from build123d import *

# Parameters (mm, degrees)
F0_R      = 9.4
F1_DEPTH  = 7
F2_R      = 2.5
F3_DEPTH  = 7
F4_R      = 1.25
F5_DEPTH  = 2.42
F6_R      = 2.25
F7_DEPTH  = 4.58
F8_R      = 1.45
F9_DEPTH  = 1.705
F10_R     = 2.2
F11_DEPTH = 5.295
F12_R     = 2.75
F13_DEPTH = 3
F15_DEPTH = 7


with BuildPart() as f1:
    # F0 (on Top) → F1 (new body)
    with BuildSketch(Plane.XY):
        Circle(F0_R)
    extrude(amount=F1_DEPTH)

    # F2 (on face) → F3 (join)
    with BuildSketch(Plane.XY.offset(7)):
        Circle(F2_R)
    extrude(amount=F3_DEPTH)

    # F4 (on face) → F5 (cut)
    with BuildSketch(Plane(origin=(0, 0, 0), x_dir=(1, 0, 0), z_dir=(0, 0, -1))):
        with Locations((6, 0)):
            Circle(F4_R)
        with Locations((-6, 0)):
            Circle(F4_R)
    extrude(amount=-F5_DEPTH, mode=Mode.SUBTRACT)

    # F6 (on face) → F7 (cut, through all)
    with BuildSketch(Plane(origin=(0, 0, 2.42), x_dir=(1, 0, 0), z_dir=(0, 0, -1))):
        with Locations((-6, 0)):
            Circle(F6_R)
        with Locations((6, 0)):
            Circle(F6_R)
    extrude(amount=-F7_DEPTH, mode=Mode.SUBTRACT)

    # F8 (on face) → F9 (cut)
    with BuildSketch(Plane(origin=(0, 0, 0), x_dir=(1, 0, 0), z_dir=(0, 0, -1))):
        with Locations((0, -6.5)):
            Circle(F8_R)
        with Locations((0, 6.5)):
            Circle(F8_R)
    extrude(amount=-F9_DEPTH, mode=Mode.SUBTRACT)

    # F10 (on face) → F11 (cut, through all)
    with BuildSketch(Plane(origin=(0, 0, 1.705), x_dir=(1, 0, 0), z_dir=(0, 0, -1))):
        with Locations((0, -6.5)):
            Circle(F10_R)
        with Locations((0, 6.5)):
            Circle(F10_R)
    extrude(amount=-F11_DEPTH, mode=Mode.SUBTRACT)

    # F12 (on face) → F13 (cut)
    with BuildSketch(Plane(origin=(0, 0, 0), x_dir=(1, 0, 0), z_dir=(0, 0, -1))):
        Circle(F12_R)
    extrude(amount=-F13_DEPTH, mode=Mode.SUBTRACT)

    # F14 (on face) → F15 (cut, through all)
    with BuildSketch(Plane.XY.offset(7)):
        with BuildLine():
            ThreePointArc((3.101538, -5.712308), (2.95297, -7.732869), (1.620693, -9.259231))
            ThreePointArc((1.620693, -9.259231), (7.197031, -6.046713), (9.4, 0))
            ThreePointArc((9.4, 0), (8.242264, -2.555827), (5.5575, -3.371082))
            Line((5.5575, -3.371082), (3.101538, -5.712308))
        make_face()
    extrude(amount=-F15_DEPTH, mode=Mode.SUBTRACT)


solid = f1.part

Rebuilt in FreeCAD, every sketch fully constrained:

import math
import FreeCAD as App
import Part
import Sketcher

doc = App.newDocument("Part")
body = doc.addObject("PartDesign::Body", "Body")

sketch1 = body.newObject("Sketcher::SketchObject", "Sketch")
sketch1.AttachmentSupport = (doc.getObject("XY_Plane"), [""])
sketch1.MapMode = "FlatFace"
sketch1.addGeometry(Part.Circle(App.Vector(0, 0, 0), App.Vector(0, 0, 1), 9), False)
sketch1.addConstraint([
    Sketcher.Constraint("Coincident", 0, 3, -1, 1),
    Sketcher.Constraint("Diameter", 0, 18.8),
])
pad1 = body.newObject("PartDesign::Pad", "Pad")
pad1.Profile = sketch1
pad1.Length = 7

sketch2 = body.newObject("Sketcher::SketchObject", "Sketch001")
sketch2.AttachmentSupport = (doc.getObject("XY_Plane"), [""])
sketch2.MapMode = "FlatFace"
sketch2.AttachmentOffset = App.Placement(App.Vector(0, 0, 7), App.Rotation())
sketch2.addGeometry(Part.Circle(App.Vector(0, 0, 0), App.Vector(0, 0, 1), 2.5), False)
sketch2.addConstraint([
    Sketcher.Constraint("Coincident", 0, 3, -1, 1),
    Sketcher.Constraint("Diameter", 0, 5.0),
])
pad2 = body.newObject("PartDesign::Pad", "Pad001")
pad2.Profile = sketch2
pad2.Length = 7

sketch3 = body.newObject("Sketcher::SketchObject", "Sketch002")
sketch3.AttachmentSupport = (doc.getObject("XY_Plane"), [""])
sketch3.MapMode = "FlatFace"
sketch3.addGeometry([
    Part.Circle(App.Vector(6, 0, 0), App.Vector(0, 0, 1), 1.2),
    Part.Circle(App.Vector(-6, 0, 0), App.Vector(0, 0, 1), 1.2),
], False)
sketch3.addConstraint([
    Sketcher.Constraint("Equal", 0, 1),
    Sketcher.Constraint("Symmetric", 0, 3, 1, 3, -1, 1),
    Sketcher.Constraint("PointOnObject", 0, 3, -1),
    Sketcher.Constraint("Diameter", 0, 2.5),
    Sketcher.Constraint("DistanceX", -1, 1, 0, 3, 6.0),
])
pocket1 = body.newObject("PartDesign::Pocket", "Pocket")
pocket1.Profile = sketch3
pocket1.Length = 2.42
pocket1.Reversed = True

sketch4 = body.newObject("Sketcher::SketchObject", "Sketch003")
sketch4.AttachmentSupport = (doc.getObject("XY_Plane"), [""])
sketch4.MapMode = "FlatFace"
sketch4.AttachmentOffset = App.Placement(App.Vector(0, 0, 2.42), App.Rotation())
sketch4.addGeometry([
    Part.Circle(App.Vector(-6, 0, 0), App.Vector(0, 0, 1), 2.2),
    Part.Circle(App.Vector(6, 0, 0), App.Vector(0, 0, 1), 2.2),
], False)
sketch4.addConstraint([
    Sketcher.Constraint("Equal", 0, 1),
    Sketcher.Constraint("Symmetric", 0, 3, 1, 3, -1, 1),
    Sketcher.Constraint("PointOnObject", 0, 3, -1),
    Sketcher.Constraint("Diameter", 0, 4.5),
    Sketcher.Constraint("DistanceX", 0, 3, -1, 1, 6.0),
])
pocket2 = body.newObject("PartDesign::Pocket", "Pocket001")
pocket2.Profile = sketch4
pocket2.Type = "ThroughAll"
pocket2.Reversed = True

sketch5 = body.newObject("Sketcher::SketchObject", "Sketch004")
sketch5.AttachmentSupport = (doc.getObject("XY_Plane"), [""])
sketch5.MapMode = "FlatFace"
sketch5.addGeometry([
    Part.Circle(App.Vector(0, 6.5, 0), App.Vector(0, 0, 1), 1.4),
    Part.Circle(App.Vector(0, -6.5, 0), App.Vector(0, 0, 1), 1.4),
], False)
sketch5.addConstraint([
    Sketcher.Constraint("Equal", 0, 1),
    Sketcher.Constraint("Symmetric", 0, 3, 1, 3, -1, 1),
    Sketcher.Constraint("PointOnObject", 0, 3, -2),
    Sketcher.Constraint("Diameter", 0, 2.9),
    Sketcher.Constraint("DistanceY", 1, 3, 0, 3, 13.0),
])
pocket3 = body.newObject("PartDesign::Pocket", "Pocket002")
pocket3.Profile = sketch5
pocket3.Length = 1.705
pocket3.Reversed = True

sketch6 = body.newObject("Sketcher::SketchObject", "Sketch005")
sketch6.AttachmentSupport = (doc.getObject("XY_Plane"), [""])
sketch6.MapMode = "FlatFace"
sketch6.AttachmentOffset = App.Placement(App.Vector(0, 0, 1.705), App.Rotation())
sketch6.addGeometry([
    Part.Circle(App.Vector(0, 6.5, 0), App.Vector(0, 0, 1), 2.2),
    Part.Circle(App.Vector(0, -6.5, 0), App.Vector(0, 0, 1), 2.2),
], False)
sketch6.addConstraint([
    Sketcher.Constraint("Equal", 0, 1),
    Sketcher.Constraint("Symmetric", 0, 3, 1, 3, -1, 1),
    Sketcher.Constraint("PointOnObject", 0, 3, -2),
    Sketcher.Constraint("Diameter", 0, 4.4),
    Sketcher.Constraint("DistanceY", 1, 3, 0, 3, 13.0),
])
pocket4 = body.newObject("PartDesign::Pocket", "Pocket003")
pocket4.Profile = sketch6
pocket4.Type = "ThroughAll"
pocket4.Reversed = True

sketch7 = body.newObject("Sketcher::SketchObject", "Sketch006")
sketch7.AttachmentSupport = (doc.getObject("XY_Plane"), [""])
sketch7.MapMode = "FlatFace"
sketch7.addGeometry(Part.Circle(App.Vector(0, 0, 0), App.Vector(0, 0, 1), 2.8), False)
sketch7.addConstraint([
    Sketcher.Constraint("Coincident", 0, 3, -1, 1),
    Sketcher.Constraint("Diameter", 0, 5.5),
])
pocket5 = body.newObject("PartDesign::Pocket", "Pocket004")
pocket5.Profile = sketch7
pocket5.Length = 3
pocket5.Reversed = True

sketch8 = body.newObject("Sketcher::SketchObject", "Sketch007")
sketch8.AttachmentSupport = (doc.getObject("XY_Plane"), [""])
sketch8.MapMode = "FlatFace"
sketch8.AttachmentOffset = App.Placement(App.Vector(0, 0, 7), App.Rotation())
sketch8.addGeometry([
    Part.ArcOfCircle(Part.Circle(App.Vector(0, -6.5, 0), App.Vector(0, 0, 1), 3.2), math.radians(-60), math.radians(14)),
    Part.ArcOfCircle(Part.Circle(App.Vector(0, 0, 0), App.Vector(0, 0, 1), 9.4), math.radians(-80), math.radians(0)),
    Part.ArcOfCircle(Part.Circle(App.Vector(6, 0, 0), App.Vector(0, 0, 1), 3.4), math.radians(-97), math.radians(0)),
    Part.LineSegment(App.Vector(5.6, -3.4, 0), App.Vector(3.1, -5.7, 0)),
], False)
sketch8.addConstraint([
    Sketcher.Constraint("Coincident", 0, 1, 1, 1),
    Sketcher.Constraint("Tangent", 1, 2, 2, 2),
    Sketcher.Constraint("Coincident", 2, 1, 3, 1),
    Sketcher.Constraint("Coincident", 3, 2, 0, 2),
    Sketcher.Constraint("Coincident", 1, 3, -1, 1),
    Sketcher.Constraint("PointOnObject", 0, 3, -2),
    Sketcher.Constraint("PointOnObject", 2, 3, -1),
    Sketcher.Constraint("Radius", 0, 3.200001),
    Sketcher.Constraint("Radius", 1, 9.400002),
    Sketcher.Constraint("Radius", 2, 3.4),
    Sketcher.Constraint("DistanceY", 0, 3, -1, 1, 6.5),
    Sketcher.Constraint("DistanceX", -1, 1, 2, 1, 5.5575),
    Sketcher.Constraint("DistanceX", -1, 1, 3, 2, 3.101538),
])
pocket6 = body.newObject("PartDesign::Pocket", "Pocket005")
pocket6.Profile = sketch8
pocket6.Type = "ThroughAll"

doc.recompute()
